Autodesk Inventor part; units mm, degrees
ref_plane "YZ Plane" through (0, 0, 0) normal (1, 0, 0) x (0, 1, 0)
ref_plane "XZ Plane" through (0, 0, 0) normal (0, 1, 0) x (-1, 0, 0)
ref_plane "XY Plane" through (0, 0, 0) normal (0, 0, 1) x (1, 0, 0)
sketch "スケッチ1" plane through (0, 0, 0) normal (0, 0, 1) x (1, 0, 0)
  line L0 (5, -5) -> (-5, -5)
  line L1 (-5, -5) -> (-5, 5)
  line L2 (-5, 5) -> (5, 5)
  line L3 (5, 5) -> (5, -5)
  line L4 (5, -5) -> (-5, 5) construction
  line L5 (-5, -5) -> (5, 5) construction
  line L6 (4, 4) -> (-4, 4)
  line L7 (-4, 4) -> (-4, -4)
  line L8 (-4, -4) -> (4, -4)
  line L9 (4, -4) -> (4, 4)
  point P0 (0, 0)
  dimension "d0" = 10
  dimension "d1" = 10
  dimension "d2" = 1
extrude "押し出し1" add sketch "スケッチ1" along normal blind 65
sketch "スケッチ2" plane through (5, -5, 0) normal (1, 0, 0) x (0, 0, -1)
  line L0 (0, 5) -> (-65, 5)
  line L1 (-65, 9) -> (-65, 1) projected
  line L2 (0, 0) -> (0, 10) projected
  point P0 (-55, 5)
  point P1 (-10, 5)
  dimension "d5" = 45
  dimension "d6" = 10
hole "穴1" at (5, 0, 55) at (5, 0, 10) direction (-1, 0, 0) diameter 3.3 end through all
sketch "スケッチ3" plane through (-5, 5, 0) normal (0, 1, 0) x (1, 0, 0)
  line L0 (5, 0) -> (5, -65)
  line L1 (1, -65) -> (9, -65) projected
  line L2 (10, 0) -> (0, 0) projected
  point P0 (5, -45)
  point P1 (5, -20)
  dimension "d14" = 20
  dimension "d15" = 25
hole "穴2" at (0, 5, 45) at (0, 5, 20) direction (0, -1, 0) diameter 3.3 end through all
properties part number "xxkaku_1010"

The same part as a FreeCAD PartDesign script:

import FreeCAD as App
import Part
import Sketcher
from FreeCAD import Vector
Q = App.Units.Quantity


def add_polygon(sketch, points):
    """Adds a closed chain of lines whose ends are joined by coincident constraints."""
    first, n = sketch.GeometryCount, len(points)
    for a, b in zip(points, points[1:] + points[:1]):
        sketch.addGeometry(Part.LineSegment(App.Vector(*a, 0), App.Vector(*b, 0)), False)
    for i in range(n):
        sketch.addConstraint(Sketcher.Constraint("Coincident", first + i, 2, first + (i + 1) % n, 1))

doc = App.newDocument("Part")
body = doc.addObject("PartDesign::Body", "Body")

# Sketch on XY plane
sketch1 = body.newObject("Sketcher::SketchObject", "Sketch")
sketch1.AttachmentSupport = (doc.getObject("XY_Plane"), [""])
sketch1.MapMode = "FlatFace"
add_polygon(sketch1, [(-5, -5), (5, -5), (5, 5), (-5, 5)])  # lines 0-3
add_polygon(sketch1, [(-4, 4), (4, 4), (4, -4), (-4, -4)])  # lines 4-7
sketch1.addConstraint(Sketcher.Constraint("Horizontal", 0))
sketch1.addConstraint(Sketcher.Constraint("Vertical", 1))
sketch1.addConstraint(Sketcher.Constraint("Horizontal", 2))
sketch1.addConstraint(Sketcher.Constraint("Vertical", 3))
sketch1.addConstraint(Sketcher.Constraint("Horizontal", 4))
sketch1.addConstraint(Sketcher.Constraint("Vertical", 5))
sketch1.addConstraint(Sketcher.Constraint("Horizontal", 6))
sketch1.addConstraint(Sketcher.Constraint("Vertical", 7))
sketch1.addConstraint(Sketcher.Constraint("Symmetric", 0, 2, 2, 2, -1, 1))
sketch1.addConstraint(Sketcher.Constraint("Symmetric", 4, 2, 6, 2, -1, 1))
sketch1.addConstraint(Sketcher.Constraint("Equal", 2, 1))
sketch1.addConstraint(Sketcher.Constraint("Equal", 6, 5))
sketch1.addConstraint(Sketcher.Constraint("DistanceX", 0, 1, 0, 2, Q("10 mm")))
sketch1.addConstraint(Sketcher.Constraint("DistanceX", 4, 2, 1, 2, Q("1 mm")))
pad1 = body.newObject("PartDesign::Pad", "Pad")
pad1.Profile = sketch1
pad1.Length = 65

# Sketch on YZ plane
sketch2 = body.newObject("Sketcher::SketchObject", "Sketch001")
sketch2.AttachmentSupport = (doc.getObject("YZ_Plane"), [""])
sketch2.MapMode = "FlatFace"
sketch2.AttachmentOffset = App.Placement(Vector(0, 0, 5), App.Rotation())
sketch2.addGeometry(Part.Circle(Vector(0, 55, 0), Vector(0, 0, 1), 1.6), False)
sketch2.addGeometry(Part.Circle(Vector(0, 10, 0), Vector(0, 0, 1), 1.6), False)
sketch2.addConstraint(Sketcher.Constraint("Equal", 0, 1))
sketch2.addConstraint(Sketcher.Constraint("PointOnObject", 0, 3, -2))
sketch2.addConstraint(Sketcher.Constraint("PointOnObject", 1, 3, -2))
sketch2.addConstraint(Sketcher.Constraint("Diameter", 0, Q("3.3 mm")))
sketch2.addConstraint(Sketcher.Constraint("DistanceY", -1, 1, 0, 3, Q("55 mm")))
sketch2.addConstraint(Sketcher.Constraint("DistanceY", -1, 1, 1, 3, Q("10 mm")))
doc.recompute()
hole = body.newObject("PartDesign::Hole", "Hole")
hole.Profile = sketch2
hole.ThreadType = "None"
hole.Diameter = 3.3
hole.DepthType = "ThroughAll"

# Sketch on XZ plane
sketch3 = body.newObject("Sketcher::SketchObject", "Sketch002")
sketch3.AttachmentSupport = (doc.getObject("XZ_Plane"), [""])
sketch3.MapMode = "FlatFace"
sketch3.AttachmentOffset = App.Placement(Vector(0, 0, -5), App.Rotation())
sketch3.addGeometry(Part.Circle(Vector(0, 45, 0), Vector(0, 0, 1), 1.6), False)
sketch3.addGeometry(Part.Circle(Vector(0, 20, 0), Vector(0, 0, 1), 1.6), False)
sketch3.addConstraint(Sketcher.Constraint("Equal", 0, 1))
sketch3.addConstraint(Sketcher.Constraint("PointOnObject", 0, 3, -2))
sketch3.addConstraint(Sketcher.Constraint("PointOnObject", 1, 3, -2))
sketch3.addConstraint(Sketcher.Constraint("Diameter", 0, Q("3.3 mm")))
sketch3.addConstraint(Sketcher.Constraint("DistanceY", -1, 1, 0, 3, Q("45 mm")))
sketch3.addConstraint(Sketcher.Constraint("DistanceY", -1, 1, 1, 3, Q("20 mm")))
doc.recompute()
hole2 = body.newObject("PartDesign::Hole", "Hole001")
hole2.Profile = sketch3
hole2.ThreadType = "None"
hole2.Diameter = 3.3
hole2.DepthType = "ThroughAll"
hole2.Reversed = True

doc.recompute()
